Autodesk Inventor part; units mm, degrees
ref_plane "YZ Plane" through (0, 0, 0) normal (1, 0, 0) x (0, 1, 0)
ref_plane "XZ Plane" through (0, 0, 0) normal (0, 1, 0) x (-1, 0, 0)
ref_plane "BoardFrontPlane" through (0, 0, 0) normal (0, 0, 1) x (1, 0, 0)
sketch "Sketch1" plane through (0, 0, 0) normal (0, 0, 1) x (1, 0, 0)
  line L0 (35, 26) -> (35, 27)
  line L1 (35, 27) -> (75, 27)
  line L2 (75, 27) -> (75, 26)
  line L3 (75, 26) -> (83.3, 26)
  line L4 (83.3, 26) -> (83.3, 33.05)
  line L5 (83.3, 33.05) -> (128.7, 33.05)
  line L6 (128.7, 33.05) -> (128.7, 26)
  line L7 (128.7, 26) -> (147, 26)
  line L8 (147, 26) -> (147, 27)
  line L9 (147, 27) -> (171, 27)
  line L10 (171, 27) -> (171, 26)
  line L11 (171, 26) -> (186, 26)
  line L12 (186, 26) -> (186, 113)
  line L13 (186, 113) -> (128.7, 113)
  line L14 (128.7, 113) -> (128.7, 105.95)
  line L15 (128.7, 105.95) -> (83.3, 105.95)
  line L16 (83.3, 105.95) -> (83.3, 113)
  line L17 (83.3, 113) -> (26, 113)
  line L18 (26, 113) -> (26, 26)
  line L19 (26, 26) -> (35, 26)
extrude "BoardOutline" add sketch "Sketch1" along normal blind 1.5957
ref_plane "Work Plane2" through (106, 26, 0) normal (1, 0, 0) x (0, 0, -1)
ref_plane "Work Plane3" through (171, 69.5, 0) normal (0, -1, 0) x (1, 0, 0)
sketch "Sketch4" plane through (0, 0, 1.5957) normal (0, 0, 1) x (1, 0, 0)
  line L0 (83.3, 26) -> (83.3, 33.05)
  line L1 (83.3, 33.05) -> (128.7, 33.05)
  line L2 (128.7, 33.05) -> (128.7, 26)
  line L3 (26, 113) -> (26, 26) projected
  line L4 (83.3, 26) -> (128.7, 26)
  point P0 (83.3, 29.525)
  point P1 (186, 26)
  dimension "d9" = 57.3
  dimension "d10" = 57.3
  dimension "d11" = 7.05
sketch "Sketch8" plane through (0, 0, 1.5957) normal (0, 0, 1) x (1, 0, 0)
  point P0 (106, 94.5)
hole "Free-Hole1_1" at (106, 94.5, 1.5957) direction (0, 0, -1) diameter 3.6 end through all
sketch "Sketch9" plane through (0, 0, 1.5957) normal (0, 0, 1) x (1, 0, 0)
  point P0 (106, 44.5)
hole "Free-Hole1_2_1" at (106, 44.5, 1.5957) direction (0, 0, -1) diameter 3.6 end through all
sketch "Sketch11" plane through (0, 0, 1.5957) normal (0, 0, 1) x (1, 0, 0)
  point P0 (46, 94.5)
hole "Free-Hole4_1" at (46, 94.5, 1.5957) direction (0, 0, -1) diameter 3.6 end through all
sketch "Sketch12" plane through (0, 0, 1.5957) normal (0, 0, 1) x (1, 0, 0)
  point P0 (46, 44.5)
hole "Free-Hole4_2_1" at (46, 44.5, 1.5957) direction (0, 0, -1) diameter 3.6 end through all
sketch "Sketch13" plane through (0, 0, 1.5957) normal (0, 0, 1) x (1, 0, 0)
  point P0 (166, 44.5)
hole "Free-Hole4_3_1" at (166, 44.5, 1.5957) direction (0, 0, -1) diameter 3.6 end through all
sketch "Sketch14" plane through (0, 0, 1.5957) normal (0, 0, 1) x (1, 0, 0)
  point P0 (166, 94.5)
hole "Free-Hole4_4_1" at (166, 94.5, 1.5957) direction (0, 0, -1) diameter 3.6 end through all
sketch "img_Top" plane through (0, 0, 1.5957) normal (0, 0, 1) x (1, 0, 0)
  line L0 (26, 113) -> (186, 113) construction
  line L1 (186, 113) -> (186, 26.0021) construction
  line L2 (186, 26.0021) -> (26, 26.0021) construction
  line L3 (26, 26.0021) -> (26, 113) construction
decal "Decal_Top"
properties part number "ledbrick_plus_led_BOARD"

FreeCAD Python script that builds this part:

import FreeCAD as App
import Part
import Sketcher

V = App.Vector
Q = App.Units.Quantity


def add_polygon(sketch, points):
    """Adds a closed chain of lines whose ends are joined by coincident constraints."""
    first, n = sketch.GeometryCount, len(points)
    for a, b in zip(points, points[1:] + points[:1]):
        sketch.addGeometry(Part.LineSegment(App.Vector(*a, 0), App.Vector(*b, 0)), False)
    for i in range(n):
        sketch.addConstraint(Sketcher.Constraint("Coincident", first + i, 2, first + (i + 1) % n, 1))

doc = App.newDocument("Part")
body = doc.addObject("PartDesign::Body", "Body")

sketch1 = body.newObject("Sketcher::SketchObject", "Sketch")
sketch1.AttachmentSupport = (doc.getObject("XY_Plane"), [""])
sketch1.MapMode = "FlatFace"
add_polygon(sketch1, [(26, 26), (35, 26), (35, 27), (75, 27), (75, 26), (83.3, 26), (83.3, 33), (128.7, 33), (128.7, 26), (147, 26), (147, 27), (171, 27), (171, 26), (186, 26), (186, 113), (128.7, 113), (128.7, 106), (83.3, 106), (83.3, 113), (26, 113)])
sketch1.addConstraint(Sketcher.Constraint("Horizontal", 0))
sketch1.addConstraint(Sketcher.Constraint("Vertical", 1))
sketch1.addConstraint(Sketcher.Constraint("Horizontal", 2))
sketch1.addConstraint(Sketcher.Constraint("Vertical", 3))
sketch1.addConstraint(Sketcher.Constraint("Horizontal", 4))
sketch1.addConstraint(Sketcher.Constraint("Vertical", 5))
sketch1.addConstraint(Sketcher.Constraint("Horizontal", 6))
sketch1.addConstraint(Sketcher.Constraint("Vertical", 7))
sketch1.addConstraint(Sketcher.Constraint("Horizontal", 8))
sketch1.addConstraint(Sketcher.Constraint("Vertical", 9))
sketch1.addConstraint(Sketcher.Constraint("Horizontal", 10))
sketch1.addConstraint(Sketcher.Constraint("Vertical", 11))
sketch1.addConstraint(Sketcher.Constraint("Horizontal", 12))
sketch1.addConstraint(Sketcher.Constraint("Vertical", 13))
sketch1.addConstraint(Sketcher.Constraint("Horizontal", 14))
sketch1.addConstraint(Sketcher.Constraint("Vertical", 15))
sketch1.addConstraint(Sketcher.Constraint("Horizontal", 16))
sketch1.addConstraint(Sketcher.Constraint("Vertical", 17))
sketch1.addConstraint(Sketcher.Constraint("Horizontal", 18))
sketch1.addConstraint(Sketcher.Constraint("Vertical", 19))
sketch1.addConstraint(Sketcher.Constraint("Horizontal", 0, 2, 3, 2))
sketch1.addConstraint(Sketcher.Constraint("Horizontal", 4, 2, 7, 2))
sketch1.addConstraint(Sketcher.Constraint("Horizontal", 2, 2, 9, 2))
sketch1.addConstraint(Sketcher.Constraint("Horizontal", 8, 2, 11, 2))
sketch1.addConstraint(Sketcher.Constraint("Horizontal", 14, 2, 17, 2))
sketch1.addConstraint(Sketcher.Constraint("Vertical", 7, 2, 14, 2))
sketch1.addConstraint(Sketcher.Constraint("Vertical", 5, 2, 16, 2))
sketch1.addConstraint(Sketcher.Constraint("Equal", 14, 18))
sketch1.addConstraint(Sketcher.Constraint("Equal", 7, 15))
sketch1.addConstraint(Sketcher.Constraint("DistanceX", 0, 1, 0, 2, Q("9 mm")))
sketch1.addConstraint(Sketcher.Constraint("DistanceX", 2, 1, 2, 2, Q("40 mm")))
sketch1.addConstraint(Sketcher.Constraint("DistanceX", 10, 1, 10, 2, Q("24 mm")))
sketch1.addConstraint(Sketcher.Constraint("DistanceX", 12, 1, 12, 2, Q("15 mm")))
sketch1.addConstraint(Sketcher.Constraint("DistanceY", 1, 1, 1, 2, Q("1 mm")))
sketch1.addConstraint(Sketcher.Constraint("DistanceY", 13, 1, 13, 2, Q("87 mm")))
sketch1.addConstraint(Sketcher.Constraint("DistanceX", 4, 1, 4, 2, Q("8.3 mm")))
sketch1.addConstraint(Sketcher.Constraint("DistanceX", 6, 1, 6, 2, Q("45.4 mm")))
sketch1.addConstraint(Sketcher.Constraint("DistanceX", -1, 1, 0, 2, Q("35 mm")))
sketch1.addConstraint(Sketcher.Constraint("DistanceY", -1, 1, 0, 2, Q("26 mm")))
sketch1.addConstraint(Sketcher.Constraint("DistanceY", 5, 1, 5, 2, Q("7.05 mm")))
pad1 = body.newObject("PartDesign::Pad", "Pad")
pad1.Profile = sketch1
pad1.Length = 1.5957

sketch2 = body.newObject("Sketcher::SketchObject", "Sketch001")
sketch2.AttachmentSupport = (doc.getObject("XY_Plane"), [""])
sketch2.MapMode = "FlatFace"
sketch2.AttachmentOffset = App.Placement(V(0, 0, 1.5957), App.Rotation())
sketch2.addGeometry(Part.Circle(V(106, 94.5, 0), V(0, 0, 1), 1.8), False)
sketch2.addConstraint(Sketcher.Constraint("Diameter", 0, Q("3.6 mm")))
sketch2.addConstraint(Sketcher.Constraint("DistanceX", -1, 1, 0, 3, Q("106 mm")))
sketch2.addConstraint(Sketcher.Constraint("DistanceY", -1, 1, 0, 3, Q("94.5 mm")))
doc.recompute()
hole = body.newObject("PartDesign::Hole", "Hole")
hole.Profile = sketch2
hole.ThreadType = "None"
hole.Diameter = 3.6
hole.DepthType = "ThroughAll"

sketch3 = body.newObject("Sketcher::SketchObject", "Sketch002")
sketch3.AttachmentSupport = (doc.getObject("XY_Plane"), [""])
sketch3.MapMode = "FlatFace"
sketch3.AttachmentOffset = App.Placement(V(0, 0, 1.5957), App.Rotation())
sketch3.addGeometry(Part.Circle(V(106, 44.5, 0), V(0, 0, 1), 1.8), False)
sketch3.addConstraint(Sketcher.Constraint("Diameter", 0, Q("3.6 mm")))
sketch3.addConstraint(Sketcher.Constraint("DistanceX", -1, 1, 0, 3, Q("106 mm")))
sketch3.addConstraint(Sketcher.Constraint("DistanceY", -1, 1, 0, 3, Q("44.5 mm")))
doc.recompute()
hole2 = body.newObject("PartDesign::Hole", "Hole001")
hole2.Profile = sketch3
hole2.ThreadType = "None"
hole2.Diameter = 3.6
hole2.DepthType = "ThroughAll"

sketch4 = body.newObject("Sketcher::SketchObject", "Sketch003")
sketch4.AttachmentSupport = (doc.getObject("XY_Plane"), [""])
sketch4.MapMode = "FlatFace"
sketch4.AttachmentOffset = App.Placement(V(0, 0, 1.5957), App.Rotation())
sketch4.addGeometry(Part.Circle(V(46, 94.5, 0), V(0, 0, 1), 1.8), False)
sketch4.addConstraint(Sketcher.Constraint("Diameter", 0, Q("3.6 mm")))
sketch4.addConstraint(Sketcher.Constraint("DistanceX", -1, 1, 0, 3, Q("46 mm")))
sketch4.addConstraint(Sketcher.Constraint("DistanceY", -1, 1, 0, 3, Q("94.5 mm")))
doc.recompute()
hole3 = body.newObject("PartDesign::Hole", "Hole002")
hole3.Profile = sketch4
hole3.ThreadType = "None"
hole3.Diameter = 3.6
hole3.DepthType = "ThroughAll"

sketch5 = body.newObject("Sketcher::SketchObject", "Sketch004")
sketch5.AttachmentSupport = (doc.getObject("XY_Plane"), [""])
sketch5.MapMode = "FlatFace"
sketch5.AttachmentOffset = App.Placement(V(0, 0, 1.5957), App.Rotation())
sketch5.addGeometry(Part.Circle(V(46, 44.5, 0), V(0, 0, 1), 1.8), False)
sketch5.addConstraint(Sketcher.Constraint("Diameter", 0, Q("3.6 mm")))
sketch5.addConstraint(Sketcher.Constraint("DistanceX", -1, 1, 0, 3, Q("46 mm")))
sketch5.addConstraint(Sketcher.Constraint("DistanceY", -1, 1, 0, 3, Q("44.5 mm")))
doc.recompute()
hole4 = body.newObject("PartDesign::Hole", "Hole003")
hole4.Profile = sketch5
hole4.ThreadType = "None"
hole4.Diameter = 3.6
hole4.DepthType = "ThroughAll"

sketch6 = body.newObject("Sketcher::SketchObject", "Sketch005")
sketch6.AttachmentSupport = (doc.getObject("XY_Plane"), [""])
sketch6.MapMode = "FlatFace"
sketch6.AttachmentOffset = App.Placement(V(0, 0, 1.5957), App.Rotation())
sketch6.addGeometry(Part.Circle(V(166, 44.5, 0), V(0, 0, 1), 1.8), False)
sketch6.addConstraint(Sketcher.Constraint("Diameter", 0, Q("3.6 mm")))
sketch6.addConstraint(Sketcher.Constraint("DistanceX", -1, 1, 0, 3, Q("166 mm")))
sketch6.addConstraint(Sketcher.Constraint("DistanceY", -1, 1, 0, 3, Q("44.5 mm")))
doc.recompute()
hole5 = body.newObject("PartDesign::Hole", "Hole004")
hole5.Profile = sketch6
hole5.ThreadType = "None"
hole5.Diameter = 3.6
hole5.DepthType = "ThroughAll"

sketch7 = body.newObject("Sketcher::SketchObject", "Sketch006")
sketch7.AttachmentSupport = (doc.getObject("XY_Plane"), [""])
sketch7.MapMode = "FlatFace"
sketch7.AttachmentOffset = App.Placement(V(0, 0, 1.5957), App.Rotation())
sketch7.addGeometry(Part.Circle(V(166, 94.5, 0), V(0, 0, 1), 1.8), False)
sketch7.addConstraint(Sketcher.Constraint("Diameter", 0, Q("3.6 mm")))
sketch7.addConstraint(Sketcher.Constraint("DistanceX", -1, 1, 0, 3, Q("166 mm")))
sketch7.addConstraint(Sketcher.Constraint("DistanceY", -1, 1, 0, 3, Q("94.5 mm")))
doc.recompute()
hole6 = body.newObject("PartDesign::Hole", "Hole005")
hole6.Profile = sketch7
hole6.ThreadType = "None"
hole6.Diameter = 3.6
hole6.DepthType = "ThroughAll"

doc.recompute()
